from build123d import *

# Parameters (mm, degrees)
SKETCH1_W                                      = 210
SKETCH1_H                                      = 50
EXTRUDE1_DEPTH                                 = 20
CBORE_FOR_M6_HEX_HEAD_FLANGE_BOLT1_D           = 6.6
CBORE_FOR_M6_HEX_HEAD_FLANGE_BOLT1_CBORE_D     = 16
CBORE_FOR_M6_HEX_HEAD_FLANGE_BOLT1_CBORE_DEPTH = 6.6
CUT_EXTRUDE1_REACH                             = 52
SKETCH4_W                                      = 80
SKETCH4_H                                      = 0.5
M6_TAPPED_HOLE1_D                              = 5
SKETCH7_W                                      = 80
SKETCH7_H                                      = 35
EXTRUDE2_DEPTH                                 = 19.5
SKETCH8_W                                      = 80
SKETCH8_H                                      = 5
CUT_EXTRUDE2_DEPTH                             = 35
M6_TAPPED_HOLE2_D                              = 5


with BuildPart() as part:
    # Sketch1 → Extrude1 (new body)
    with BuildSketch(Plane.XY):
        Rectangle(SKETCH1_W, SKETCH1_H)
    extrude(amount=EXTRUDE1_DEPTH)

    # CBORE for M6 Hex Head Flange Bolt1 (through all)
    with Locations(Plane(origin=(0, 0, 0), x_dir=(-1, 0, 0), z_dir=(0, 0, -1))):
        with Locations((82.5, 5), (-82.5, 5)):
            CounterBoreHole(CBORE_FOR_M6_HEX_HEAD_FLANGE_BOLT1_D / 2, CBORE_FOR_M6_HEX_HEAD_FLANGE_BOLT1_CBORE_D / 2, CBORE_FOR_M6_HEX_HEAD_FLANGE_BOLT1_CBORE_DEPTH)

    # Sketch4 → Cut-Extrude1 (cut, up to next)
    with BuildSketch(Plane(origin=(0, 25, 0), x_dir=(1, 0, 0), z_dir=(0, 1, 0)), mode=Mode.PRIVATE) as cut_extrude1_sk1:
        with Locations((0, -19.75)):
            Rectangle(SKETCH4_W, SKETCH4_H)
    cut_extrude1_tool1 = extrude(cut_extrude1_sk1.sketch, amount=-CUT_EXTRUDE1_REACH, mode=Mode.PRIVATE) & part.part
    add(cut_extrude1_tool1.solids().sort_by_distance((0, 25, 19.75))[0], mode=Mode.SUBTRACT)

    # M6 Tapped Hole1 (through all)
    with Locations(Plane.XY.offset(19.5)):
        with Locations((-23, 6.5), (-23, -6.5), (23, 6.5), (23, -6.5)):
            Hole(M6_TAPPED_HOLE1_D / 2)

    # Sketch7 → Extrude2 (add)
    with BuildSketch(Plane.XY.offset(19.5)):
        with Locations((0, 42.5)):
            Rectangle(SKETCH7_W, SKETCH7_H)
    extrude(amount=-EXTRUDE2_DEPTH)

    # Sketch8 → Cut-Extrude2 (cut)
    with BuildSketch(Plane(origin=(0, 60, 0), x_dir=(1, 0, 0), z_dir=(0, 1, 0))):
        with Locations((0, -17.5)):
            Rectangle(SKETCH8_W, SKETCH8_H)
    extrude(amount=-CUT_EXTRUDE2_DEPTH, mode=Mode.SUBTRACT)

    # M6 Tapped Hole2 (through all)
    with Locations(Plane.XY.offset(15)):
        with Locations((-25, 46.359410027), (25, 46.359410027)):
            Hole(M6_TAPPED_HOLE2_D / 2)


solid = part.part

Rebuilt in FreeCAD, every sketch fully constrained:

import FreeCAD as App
import Part
import Sketcher


def add_polygon(sketch, points):
    """Adds a closed chain of lines whose ends are joined by coincident constraints."""
    first, n = sketch.GeometryCount, len(points)
    for a, b in zip(points, points[1:] + points[:1]):
        sketch.addGeometry(Part.LineSegment(App.Vector(*a, 0), App.Vector(*b, 0)), False)
    for i in range(n):
        sketch.addConstraint(Sketcher.Constraint("Coincident", first + i, 2, first + (i + 1) % n, 1))

doc = App.newDocument("Part")
body = doc.addObject("PartDesign::Body", "Body")

sketch1 = body.newObject("Sketcher::SketchObject", "Sketch")
sketch1.AttachmentSupport = (doc.getObject("XY_Plane"), [""])
sketch1.MapMode = "FlatFace"
add_polygon(sketch1, [(-105, 25), (-105, -25), (105, -25), (105, 25)])
sketch1.addConstraint([
    Sketcher.Constraint("Vertical", 0),
    Sketcher.Constraint("Horizontal", 1),
    Sketcher.Constraint("Vertical", 2),
    Sketcher.Constraint("Horizontal", 3),
    Sketcher.Constraint("Symmetric", 0, 2, 2, 2, -1, 1),
    Sketcher.Constraint("DistanceX", 1, 1, 1, 2, 210.0),
    Sketcher.Constraint("DistanceY", 0, 2, 0, 1, 50.0),
])
pad1 = body.newObject("PartDesign::Pad", "Pad")
pad1.Profile = sketch1
pad1.Length = 20

sketch2 = body.newObject("Sketcher::SketchObject", "Sketch001")
sketch2.AttachmentSupport = (doc.getObject("XY_Plane"), [""])
sketch2.MapMode = "FlatFace"
sketch2.addGeometry([
    Part.Circle(App.Vector(-82.5, 5, 0), App.Vector(0, 0, 1), 3.3),
    Part.Circle(App.Vector(82.5, 5, 0), App.Vector(0, 0, 1), 3.3),
], False)
sketch2.addConstraint([
    Sketcher.Constraint("Equal", 0, 1),
    Sketcher.Constraint("Symmetric", 0, 3, 1, 3, -2),
    Sketcher.Constraint("Diameter", 0, 6.6),
    Sketcher.Constraint("DistanceY", -1, 1, 0, 3, 5.0),
    Sketcher.Constraint("DistanceX", 0, 3, 1, 3, 165.0),
])
doc.recompute()
hole = body.newObject("PartDesign::Hole", "Hole")
hole.Profile = sketch2
hole.ThreadType = "None"
hole.Diameter = 6.6
hole.DepthType = "ThroughAll"
hole.HoleCutType = "Counterbore"
hole.HoleCutDiameter = 16
hole.HoleCutDepth = 6.6
hole.Reversed = True

sketch3 = body.newObject("Sketcher::SketchObject", "Sketch002")
sketch3.AttachmentSupport = (doc.getObject("XZ_Plane"), [""])
sketch3.MapMode = "FlatFace"
sketch3.AttachmentOffset = App.Placement(App.Vector(0, 0, -25), App.Rotation())
add_polygon(sketch3, [(-40, 19.5), (-40, 20), (40, 20), (40, 19.5)])
sketch3.addConstraint([
    Sketcher.Constraint("Vertical", 0),
    Sketcher.Constraint("Horizontal", 1),
    Sketcher.Constraint("Vertical", 2),
    Sketcher.Constraint("Horizontal", 3),
    Sketcher.Constraint("DistanceX", 1, 1, 1, 2, 80.0),
    Sketcher.Constraint("DistanceY", 0, 1, 0, 2, 0.5),
    Sketcher.Constraint("DistanceX", 0, 2, -1, 1, 40.0),
    Sketcher.Constraint("DistanceY", -1, 1, 0, 2, 20.0),
])
pocket1 = body.newObject("PartDesign::Pocket", "Pocket")
pocket1.Profile = sketch3
pocket1.Type = "UpToFirst"
pocket1.Reversed = True

sketch4 = body.newObject("Sketcher::SketchObject", "Sketch003")
sketch4.AttachmentSupport = (doc.getObject("XY_Plane"), [""])
sketch4.MapMode = "FlatFace"
sketch4.AttachmentOffset = App.Placement(App.Vector(0, 0, 19.5), App.Rotation())
sketch4.addGeometry([
    Part.Circle(App.Vector(-23, 6.5, 0), App.Vector(0, 0, 1), 2.5),
    Part.Circle(App.Vector(-23, -6.5, 0), App.Vector(0, 0, 1), 2.5),
    Part.Circle(App.Vector(23, 6.5, 0), App.Vector(0, 0, 1), 2.5),
    Part.Circle(App.Vector(23, -6.5, 0), App.Vector(0, 0, 1), 2.5),
], False)
sketch4.addConstraint([
    Sketcher.Constraint("Equal", 0, 1),
    Sketcher.Constraint("Equal", 1, 2),
    Sketcher.Constraint("Equal", 2, 3),
    Sketcher.Constraint("Symmetric", 1, 3, 2, 3, -1, 1),
    Sketcher.Constraint("Symmetric", 0, 3, 3, 3, -1, 1),
    Sketcher.Constraint("Symmetric", 0, 3, 2, 3, -2),
    Sketcher.Constraint("Diameter", 0, 5.0),
    Sketcher.Constraint("DistanceX", 0, 3, -1, 1, 23.0),
    Sketcher.Constraint("DistanceY", 1, 3, 0, 3, 13.0),
])
doc.recompute()
hole2 = body.newObject("PartDesign::Hole", "Hole001")
hole2.Profile = sketch4
hole2.ThreadType = "None"
hole2.Diameter = 5
hole2.DepthType = "ThroughAll"

sketch5 = body.newObject("Sketcher::SketchObject", "Sketch004")
sketch5.AttachmentSupport = (doc.getObject("XY_Plane"), [""])
sketch5.MapMode = "FlatFace"
sketch5.AttachmentOffset = App.Placement(App.Vector(0, 0, 19.5), App.Rotation())
add_polygon(sketch5, [(-40, 60), (-40, 25), (40, 25), (40, 60)])
sketch5.addConstraint([
    Sketcher.Constraint("Vertical", 0),
    Sketcher.Constraint("Horizontal", 1),
    Sketcher.Constraint("Vertical", 2),
    Sketcher.Constraint("Horizontal", 3),
    Sketcher.Constraint("DistanceX", 1, 1, 1, 2, 80.0),
    Sketcher.Constraint("DistanceY", 0, 2, 0, 1, 35.0),
    Sketcher.Constraint("DistanceX", 0, 2, -1, 1, 40.0),
    Sketcher.Constraint("DistanceY", -1, 1, 0, 2, 25.0),
])
pad2 = body.newObject("PartDesign::Pad", "Pad001")
pad2.Profile = sketch5
pad2.Length = 19.5
pad2.Reversed = True

sketch6 = body.newObject("Sketcher::SketchObject", "Sketch005")
sketch6.AttachmentSupport = (doc.getObject("XZ_Plane"), [""])
sketch6.MapMode = "FlatFace"
sketch6.AttachmentOffset = App.Placement(App.Vector(0, 0, -60), App.Rotation())
add_polygon(sketch6, [(-40, 15), (-40, 20), (40, 20), (40, 15)])
sketch6.addConstraint([
    Sketcher.Constraint("Vertical", 0),
    Sketcher.Constraint("Horizontal", 1),
    Sketcher.Constraint("Vertical", 2),
    Sketcher.Constraint("Horizontal", 3),
    Sketcher.Constraint("DistanceX", 1, 1, 1, 2, 80.0),
    Sketcher.Constraint("DistanceY", 0, 1, 0, 2, 5.0),
    Sketcher.Constraint("DistanceX", 0, 2, -1, 1, 40.0),
    Sketcher.Constraint("DistanceY", -1, 1, 0, 2, 20.0),
])
pocket2 = body.newObject("PartDesign::Pocket", "Pocket001")
pocket2.Profile = sketch6
pocket2.Length = 35
pocket2.Reversed = True

sketch7 = body.newObject("Sketcher::SketchObject", "Sketch006")
sketch7.AttachmentSupport = (doc.getObject("XY_Plane"), [""])
sketch7.MapMode = "FlatFace"
sketch7.AttachmentOffset = App.Placement(App.Vector(0, 0, 15), App.Rotation())
sketch7.addGeometry([
    Part.Circle(App.Vector(-25, 46.4, 0), App.Vector(0, 0, 1), 2.5),
    Part.Circle(App.Vector(25, 46.4, 0), App.Vector(0, 0, 1), 2.5),
], False)
sketch7.addConstraint([
    Sketcher.Constraint("Equal", 0, 1),
    Sketcher.Constraint("Symmetric", 0, 3, 1, 3, -2),
    Sketcher.Constraint("Diameter", 0, 5.0),
    Sketcher.Constraint("DistanceX", 0, 3, -1, 1, 25.0),
    Sketcher.Constraint("DistanceY", -1, 1, 0, 3, 46.35941),
])
doc.recompute()
hole3 = body.newObject("PartDesign::Hole", "Hole002")
hole3.Profile = sketch7
hole3.ThreadType = "None"
hole3.Diameter = 5
hole3.DepthType = "ThroughAll"

doc.recompute()
